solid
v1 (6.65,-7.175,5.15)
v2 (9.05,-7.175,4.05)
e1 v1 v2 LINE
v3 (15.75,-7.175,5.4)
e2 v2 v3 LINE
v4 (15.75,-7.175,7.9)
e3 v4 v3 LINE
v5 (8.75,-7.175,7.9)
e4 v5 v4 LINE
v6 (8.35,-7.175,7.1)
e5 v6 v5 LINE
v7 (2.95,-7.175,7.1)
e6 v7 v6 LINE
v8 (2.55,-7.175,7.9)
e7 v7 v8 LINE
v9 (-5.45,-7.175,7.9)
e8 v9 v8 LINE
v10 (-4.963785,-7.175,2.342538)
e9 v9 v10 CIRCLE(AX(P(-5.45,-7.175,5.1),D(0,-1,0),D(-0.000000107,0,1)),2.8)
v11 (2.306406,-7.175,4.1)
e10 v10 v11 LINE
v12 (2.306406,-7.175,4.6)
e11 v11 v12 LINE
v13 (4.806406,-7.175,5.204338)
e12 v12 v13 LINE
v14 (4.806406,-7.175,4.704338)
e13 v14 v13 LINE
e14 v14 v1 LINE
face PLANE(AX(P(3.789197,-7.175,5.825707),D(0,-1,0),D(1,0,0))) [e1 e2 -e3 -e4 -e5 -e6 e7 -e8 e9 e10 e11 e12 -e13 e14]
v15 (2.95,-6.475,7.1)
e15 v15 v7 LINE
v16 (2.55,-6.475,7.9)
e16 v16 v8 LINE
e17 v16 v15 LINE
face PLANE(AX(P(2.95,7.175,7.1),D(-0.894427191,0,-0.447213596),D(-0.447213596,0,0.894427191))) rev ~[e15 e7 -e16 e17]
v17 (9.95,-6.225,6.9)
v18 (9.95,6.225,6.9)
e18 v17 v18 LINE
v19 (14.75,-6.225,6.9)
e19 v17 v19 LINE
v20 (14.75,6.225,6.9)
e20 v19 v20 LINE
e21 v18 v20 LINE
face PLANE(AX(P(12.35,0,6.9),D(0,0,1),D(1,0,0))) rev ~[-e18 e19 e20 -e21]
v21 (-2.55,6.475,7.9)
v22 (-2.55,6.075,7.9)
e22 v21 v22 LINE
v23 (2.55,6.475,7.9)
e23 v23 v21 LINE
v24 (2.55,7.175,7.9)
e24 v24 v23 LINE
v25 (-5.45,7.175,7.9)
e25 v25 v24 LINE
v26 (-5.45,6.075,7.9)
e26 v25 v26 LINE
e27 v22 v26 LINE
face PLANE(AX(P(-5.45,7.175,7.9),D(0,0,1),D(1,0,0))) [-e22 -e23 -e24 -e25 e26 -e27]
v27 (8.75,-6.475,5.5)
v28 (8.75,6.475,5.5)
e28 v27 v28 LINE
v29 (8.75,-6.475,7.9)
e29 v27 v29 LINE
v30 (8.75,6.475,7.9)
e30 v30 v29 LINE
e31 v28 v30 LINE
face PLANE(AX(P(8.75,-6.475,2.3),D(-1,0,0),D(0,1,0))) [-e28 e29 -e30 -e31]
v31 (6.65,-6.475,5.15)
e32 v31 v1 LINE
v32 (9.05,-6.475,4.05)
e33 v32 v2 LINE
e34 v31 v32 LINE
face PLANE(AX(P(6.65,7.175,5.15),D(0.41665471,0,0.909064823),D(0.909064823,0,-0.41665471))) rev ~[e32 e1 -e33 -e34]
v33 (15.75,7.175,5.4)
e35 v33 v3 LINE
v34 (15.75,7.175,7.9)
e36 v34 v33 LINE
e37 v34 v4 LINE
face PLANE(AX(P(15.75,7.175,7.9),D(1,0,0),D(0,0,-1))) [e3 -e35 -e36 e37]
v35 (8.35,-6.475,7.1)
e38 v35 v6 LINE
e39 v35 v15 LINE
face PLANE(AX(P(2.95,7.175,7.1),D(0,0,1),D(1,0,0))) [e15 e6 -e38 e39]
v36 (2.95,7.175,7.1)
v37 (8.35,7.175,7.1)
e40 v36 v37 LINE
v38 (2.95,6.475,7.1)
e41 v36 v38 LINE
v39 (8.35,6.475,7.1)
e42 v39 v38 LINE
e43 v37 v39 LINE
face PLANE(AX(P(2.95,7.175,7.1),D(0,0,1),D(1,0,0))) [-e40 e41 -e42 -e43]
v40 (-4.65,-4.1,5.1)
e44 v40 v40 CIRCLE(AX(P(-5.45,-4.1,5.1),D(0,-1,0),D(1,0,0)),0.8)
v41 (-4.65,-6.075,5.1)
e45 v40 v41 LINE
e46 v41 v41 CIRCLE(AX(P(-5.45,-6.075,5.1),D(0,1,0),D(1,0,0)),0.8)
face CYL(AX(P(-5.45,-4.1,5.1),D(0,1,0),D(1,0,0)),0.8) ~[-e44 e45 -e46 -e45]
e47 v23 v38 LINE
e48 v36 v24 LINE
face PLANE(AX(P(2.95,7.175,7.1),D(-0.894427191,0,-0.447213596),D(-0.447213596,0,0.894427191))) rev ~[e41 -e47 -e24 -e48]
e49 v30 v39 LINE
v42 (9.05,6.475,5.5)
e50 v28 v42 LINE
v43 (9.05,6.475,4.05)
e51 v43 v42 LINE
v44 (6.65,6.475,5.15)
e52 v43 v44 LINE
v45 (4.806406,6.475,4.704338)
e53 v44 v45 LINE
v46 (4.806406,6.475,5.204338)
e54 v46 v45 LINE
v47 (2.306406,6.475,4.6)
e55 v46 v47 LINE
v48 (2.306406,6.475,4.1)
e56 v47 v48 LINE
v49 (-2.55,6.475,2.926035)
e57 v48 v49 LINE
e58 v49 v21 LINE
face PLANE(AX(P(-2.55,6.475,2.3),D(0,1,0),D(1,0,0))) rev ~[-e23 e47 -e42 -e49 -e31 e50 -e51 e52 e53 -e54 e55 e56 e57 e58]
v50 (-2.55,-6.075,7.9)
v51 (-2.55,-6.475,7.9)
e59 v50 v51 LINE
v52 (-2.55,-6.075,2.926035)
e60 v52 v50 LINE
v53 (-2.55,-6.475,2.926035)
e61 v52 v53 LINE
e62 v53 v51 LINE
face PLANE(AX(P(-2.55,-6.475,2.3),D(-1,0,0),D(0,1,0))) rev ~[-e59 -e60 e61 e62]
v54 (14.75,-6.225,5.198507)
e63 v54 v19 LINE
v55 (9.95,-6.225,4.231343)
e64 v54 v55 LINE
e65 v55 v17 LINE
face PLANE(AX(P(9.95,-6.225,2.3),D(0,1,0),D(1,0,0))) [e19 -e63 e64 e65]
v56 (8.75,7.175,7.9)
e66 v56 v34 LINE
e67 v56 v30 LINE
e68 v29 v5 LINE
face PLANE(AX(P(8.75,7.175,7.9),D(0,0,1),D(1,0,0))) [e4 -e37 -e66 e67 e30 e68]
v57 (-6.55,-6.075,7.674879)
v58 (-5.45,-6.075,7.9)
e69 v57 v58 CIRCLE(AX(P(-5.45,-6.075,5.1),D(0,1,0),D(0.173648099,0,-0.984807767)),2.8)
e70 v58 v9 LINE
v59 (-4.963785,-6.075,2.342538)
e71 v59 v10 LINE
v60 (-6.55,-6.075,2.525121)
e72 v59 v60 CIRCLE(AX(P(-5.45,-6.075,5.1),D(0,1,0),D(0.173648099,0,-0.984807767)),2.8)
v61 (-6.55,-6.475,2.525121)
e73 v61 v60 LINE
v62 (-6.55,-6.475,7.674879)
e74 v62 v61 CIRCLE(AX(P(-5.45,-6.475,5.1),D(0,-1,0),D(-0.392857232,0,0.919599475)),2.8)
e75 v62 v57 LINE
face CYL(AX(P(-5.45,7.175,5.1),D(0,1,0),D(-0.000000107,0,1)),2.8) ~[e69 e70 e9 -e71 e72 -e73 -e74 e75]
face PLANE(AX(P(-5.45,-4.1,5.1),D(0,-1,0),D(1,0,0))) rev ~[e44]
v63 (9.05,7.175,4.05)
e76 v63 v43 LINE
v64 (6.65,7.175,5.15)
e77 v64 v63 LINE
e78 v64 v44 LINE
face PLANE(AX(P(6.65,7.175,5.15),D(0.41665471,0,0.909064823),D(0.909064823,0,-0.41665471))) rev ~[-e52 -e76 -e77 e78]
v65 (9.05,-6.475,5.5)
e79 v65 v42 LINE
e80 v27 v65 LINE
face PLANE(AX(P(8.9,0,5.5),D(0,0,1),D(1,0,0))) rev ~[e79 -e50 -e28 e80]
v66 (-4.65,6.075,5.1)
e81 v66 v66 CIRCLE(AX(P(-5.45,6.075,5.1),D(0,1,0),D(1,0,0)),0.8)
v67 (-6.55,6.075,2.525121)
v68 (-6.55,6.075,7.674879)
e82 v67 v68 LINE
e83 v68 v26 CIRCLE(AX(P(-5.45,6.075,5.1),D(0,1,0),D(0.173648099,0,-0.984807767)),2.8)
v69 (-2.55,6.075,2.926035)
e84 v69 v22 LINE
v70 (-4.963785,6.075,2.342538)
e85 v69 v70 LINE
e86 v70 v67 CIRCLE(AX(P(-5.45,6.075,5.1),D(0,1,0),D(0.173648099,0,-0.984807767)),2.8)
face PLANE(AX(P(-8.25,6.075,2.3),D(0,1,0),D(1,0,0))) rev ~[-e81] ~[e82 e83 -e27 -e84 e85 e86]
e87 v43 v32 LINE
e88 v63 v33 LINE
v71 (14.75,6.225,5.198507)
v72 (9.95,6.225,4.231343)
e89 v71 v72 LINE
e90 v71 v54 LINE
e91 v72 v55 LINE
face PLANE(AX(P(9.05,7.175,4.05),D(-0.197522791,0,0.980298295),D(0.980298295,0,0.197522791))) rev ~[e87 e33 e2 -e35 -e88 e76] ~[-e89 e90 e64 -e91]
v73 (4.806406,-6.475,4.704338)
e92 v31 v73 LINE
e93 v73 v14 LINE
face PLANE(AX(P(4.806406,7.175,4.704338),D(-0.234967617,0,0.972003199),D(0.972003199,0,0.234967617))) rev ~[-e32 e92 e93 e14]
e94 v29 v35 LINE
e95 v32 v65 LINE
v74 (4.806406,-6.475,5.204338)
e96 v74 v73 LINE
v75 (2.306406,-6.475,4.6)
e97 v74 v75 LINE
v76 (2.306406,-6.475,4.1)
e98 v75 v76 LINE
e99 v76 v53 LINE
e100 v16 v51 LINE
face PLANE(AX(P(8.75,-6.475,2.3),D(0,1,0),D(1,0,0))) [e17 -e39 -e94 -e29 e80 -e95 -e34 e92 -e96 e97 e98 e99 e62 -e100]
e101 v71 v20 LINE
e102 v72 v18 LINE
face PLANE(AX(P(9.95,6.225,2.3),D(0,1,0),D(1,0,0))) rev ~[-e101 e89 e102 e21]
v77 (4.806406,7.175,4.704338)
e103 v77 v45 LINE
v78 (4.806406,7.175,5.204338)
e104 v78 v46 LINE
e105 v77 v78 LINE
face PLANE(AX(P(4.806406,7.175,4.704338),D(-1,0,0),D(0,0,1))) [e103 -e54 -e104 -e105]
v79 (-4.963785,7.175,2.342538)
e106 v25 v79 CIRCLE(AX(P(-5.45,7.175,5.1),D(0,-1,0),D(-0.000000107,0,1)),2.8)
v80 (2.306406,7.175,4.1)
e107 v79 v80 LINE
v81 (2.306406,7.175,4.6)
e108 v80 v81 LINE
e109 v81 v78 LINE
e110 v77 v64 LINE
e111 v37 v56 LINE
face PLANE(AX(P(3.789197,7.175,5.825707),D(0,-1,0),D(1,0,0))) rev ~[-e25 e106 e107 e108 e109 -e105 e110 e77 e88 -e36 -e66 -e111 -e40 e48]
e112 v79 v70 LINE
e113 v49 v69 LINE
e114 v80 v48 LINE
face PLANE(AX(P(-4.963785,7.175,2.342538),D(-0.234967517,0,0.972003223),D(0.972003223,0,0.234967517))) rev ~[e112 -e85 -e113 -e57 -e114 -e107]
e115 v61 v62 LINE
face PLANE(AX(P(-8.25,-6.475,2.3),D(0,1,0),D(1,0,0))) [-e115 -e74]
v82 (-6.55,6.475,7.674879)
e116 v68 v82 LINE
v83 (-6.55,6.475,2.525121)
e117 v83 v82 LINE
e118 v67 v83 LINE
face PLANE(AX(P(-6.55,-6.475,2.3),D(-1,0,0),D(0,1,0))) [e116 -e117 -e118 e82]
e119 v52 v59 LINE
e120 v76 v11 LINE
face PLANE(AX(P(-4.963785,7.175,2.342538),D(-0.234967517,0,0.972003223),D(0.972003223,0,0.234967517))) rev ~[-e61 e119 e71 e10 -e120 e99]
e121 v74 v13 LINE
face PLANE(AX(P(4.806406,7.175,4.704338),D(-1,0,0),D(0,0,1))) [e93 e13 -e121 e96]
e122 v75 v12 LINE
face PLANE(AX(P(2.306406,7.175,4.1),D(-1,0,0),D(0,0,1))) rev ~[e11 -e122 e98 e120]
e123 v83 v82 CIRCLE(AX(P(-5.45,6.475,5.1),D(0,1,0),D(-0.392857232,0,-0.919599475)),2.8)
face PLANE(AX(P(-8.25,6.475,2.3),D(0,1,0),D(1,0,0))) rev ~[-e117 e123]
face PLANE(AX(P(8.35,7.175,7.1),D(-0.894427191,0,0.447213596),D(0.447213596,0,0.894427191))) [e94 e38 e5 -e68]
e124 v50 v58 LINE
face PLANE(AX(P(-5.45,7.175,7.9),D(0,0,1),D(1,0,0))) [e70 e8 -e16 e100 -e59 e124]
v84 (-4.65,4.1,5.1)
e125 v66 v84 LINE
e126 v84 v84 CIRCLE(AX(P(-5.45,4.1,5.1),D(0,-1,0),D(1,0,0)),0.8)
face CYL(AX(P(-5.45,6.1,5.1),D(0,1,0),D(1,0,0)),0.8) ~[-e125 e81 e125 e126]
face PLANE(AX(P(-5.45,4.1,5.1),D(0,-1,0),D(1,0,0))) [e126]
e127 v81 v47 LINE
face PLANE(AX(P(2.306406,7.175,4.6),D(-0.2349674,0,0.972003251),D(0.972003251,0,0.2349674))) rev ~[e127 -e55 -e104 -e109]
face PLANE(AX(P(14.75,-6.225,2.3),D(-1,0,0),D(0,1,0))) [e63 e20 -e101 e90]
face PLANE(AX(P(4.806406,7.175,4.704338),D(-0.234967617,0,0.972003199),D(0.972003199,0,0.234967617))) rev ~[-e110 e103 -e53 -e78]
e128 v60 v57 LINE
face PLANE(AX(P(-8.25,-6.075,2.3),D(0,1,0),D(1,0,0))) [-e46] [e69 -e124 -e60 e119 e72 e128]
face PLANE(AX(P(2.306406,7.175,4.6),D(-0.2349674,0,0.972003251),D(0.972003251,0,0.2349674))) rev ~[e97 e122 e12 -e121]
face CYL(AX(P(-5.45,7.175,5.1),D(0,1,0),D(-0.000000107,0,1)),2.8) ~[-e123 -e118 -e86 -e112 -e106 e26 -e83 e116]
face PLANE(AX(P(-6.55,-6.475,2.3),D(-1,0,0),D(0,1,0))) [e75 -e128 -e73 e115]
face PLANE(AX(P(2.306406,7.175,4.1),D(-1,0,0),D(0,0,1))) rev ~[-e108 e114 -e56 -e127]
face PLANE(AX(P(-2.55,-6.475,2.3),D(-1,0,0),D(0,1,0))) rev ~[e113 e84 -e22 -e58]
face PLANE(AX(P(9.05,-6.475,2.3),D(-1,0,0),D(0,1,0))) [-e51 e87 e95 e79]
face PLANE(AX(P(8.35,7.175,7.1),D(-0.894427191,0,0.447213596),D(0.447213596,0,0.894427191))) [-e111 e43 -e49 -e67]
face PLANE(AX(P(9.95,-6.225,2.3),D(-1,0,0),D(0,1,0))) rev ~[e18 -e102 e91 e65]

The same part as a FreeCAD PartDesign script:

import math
import FreeCAD as App
import Part
import Sketcher


def add_polygon(sketch, points):
    """Adds a closed chain of lines whose ends are joined by coincident constraints."""
    first, n = sketch.GeometryCount, len(points)
    for a, b in zip(points, points[1:] + points[:1]):
        sketch.addGeometry(Part.LineSegment(App.Vector(*a, 0), App.Vector(*b, 0)), False)
    for i in range(n):
        sketch.addConstraint(Sketcher.Constraint("Coincident", first + i, 2, first + (i + 1) % n, 1))

doc = App.newDocument("Part")
body = doc.addObject("PartDesign::Body", "Body")

sketch1 = doc.addObject("Sketcher::SketchObject", "Sketch")
body.addObject(sketch1)
sketch1.AttachmentSupport = (doc.XZ_Plane, [""])
sketch1.MapMode = "FlatFace"
sketch1.AttachmentOffset = App.Placement(App.Vector(0, 0, 4.1), App.Rotation())
sketch1.addGeometry(Part.Circle(App.Vector(2.8, 2.8, 0), App.Vector(0, 0, 1), 0.8), False)
sketch1.addConstraint(Sketcher.Constraint("Diameter", 0, 1.6))
sketch1.addConstraint(Sketcher.Constraint("DistanceX", -1, 1, 0, 3, 2.8))
sketch1.addConstraint(Sketcher.Constraint("DistanceY", -1, 1, 0, 3, 2.8))
pad1 = doc.addObject("PartDesign::Pad", "Pad")
body.addObject(pad1)
pad1.Profile = sketch1
pad1.Length = 2
body2 = doc.addObject("PartDesign::Body", "Body001")

sketch2 = doc.addObject("Sketcher::SketchObject", "Sketch001")
body2.addObject(sketch2)
sketch2.AttachmentSupport = (doc.getObject("XZ_Plane001"), [""])
sketch2.MapMode = "FlatFace"
sketch2.AttachmentOffset = App.Placement(App.Vector(0, 0, -6.1), App.Rotation())
sketch2.addGeometry(Part.Circle(App.Vector(2.8, 2.8, 0), App.Vector(0, 0, 1), 0.8), False)
sketch2.addConstraint(Sketcher.Constraint("Diameter", 0, 1.6))
sketch2.addConstraint(Sketcher.Constraint("DistanceX", -1, 1, 0, 3, 2.8))
sketch2.addConstraint(Sketcher.Constraint("DistanceY", -1, 1, 0, 3, 2.8))
pad2 = doc.addObject("PartDesign::Pad", "Pad001")
body2.addObject(pad2)
pad2.Profile = sketch2
pad2.Length = 2
body3 = doc.addObject("PartDesign::Body", "Body002")

sketch3 = doc.addObject("Sketcher::SketchObject", "Sketch002")
body3.addObject(sketch3)
sketch3.AttachmentSupport = (doc.getObject("XY_Plane002"), [""])
sketch3.MapMode = "FlatFace"
add_polygon(sketch3, [(17, 6.47), (17, -6.47), (17.3, -6.47), (17.3, 6.47)])
sketch3.addConstraint(Sketcher.Constraint("Vertical", 0))
sketch3.addConstraint(Sketcher.Constraint("Horizontal", 1))
sketch3.addConstraint(Sketcher.Constraint("Vertical", 2))
sketch3.addConstraint(Sketcher.Constraint("Horizontal", 3))
sketch3.addConstraint(Sketcher.Constraint("DistanceX", 1, 1, 1, 2, 0.3))
sketch3.addConstraint(Sketcher.Constraint("DistanceX", -1, 1, 0, 2, 17.0))
sketch3.addConstraint(Sketcher.Constraint("DistanceY", 0, 2, 0, 1, 12.95))
sketch3.addConstraint(Sketcher.Constraint("DistanceY", 0, 2, -1, 1, 6.475))
pad3 = doc.addObject("PartDesign::Pad", "Pad002")
body3.addObject(pad3)
pad3.Profile = sketch3
pad3.Length = 3.2
body4 = doc.addObject("PartDesign::Body", "Body003")
body4.AllowCompound = True

sketch4 = doc.addObject("Sketcher::SketchObject", "Sketch003")
body4.addObject(sketch4)
sketch4.AttachmentSupport = (doc.getObject("XY_Plane003"), [""])
sketch4.MapMode = "FlatFace"
add_polygon(sketch4, [(18.2, 6.2), (18.2, -6.2), (23, -6.2), (23, 6.2)])
sketch4.addConstraint(Sketcher.Constraint("Vertical", 0))
sketch4.addConstraint(Sketcher.Constraint("Horizontal", 1))
sketch4.addConstraint(Sketcher.Constraint("Vertical", 2))
sketch4.addConstraint(Sketcher.Constraint("Horizontal", 3))
sketch4.addConstraint(Sketcher.Constraint("DistanceX", 1, 1, 1, 2, 4.8))
sketch4.addConstraint(Sketcher.Constraint("DistanceX", -1, 1, 1, 2, 23.0))
sketch4.addConstraint(Sketcher.Constraint("DistanceY", 0, 2, 0, 1, 12.45))
sketch4.addConstraint(Sketcher.Constraint("DistanceY", 0, 2, -1, 1, 6.225))
pad4 = doc.addObject("PartDesign::Pad", "Pad003")
body4.addObject(pad4)
pad4.Profile = sketch4
pad4.Length = 4.6
doc.recompute()

boolean = doc.addObject("PartDesign::Boolean", "Boolean")
body4.addObject(boolean)
boolean.Type = "Fuse"
boolean.addObjects([body3])
body5 = doc.addObject("PartDesign::Body", "Body004")

sketch5 = doc.addObject("Sketcher::SketchObject", "Sketch004")
body5.addObject(sketch5)
sketch5.AttachmentSupport = (doc.getObject("XY_Plane004"), [""])
sketch5.MapMode = "FlatFace"
add_polygon(sketch5, [(0, 6.5), (0, -6.5), (1.7, -6.5), (1.7, 6.5)])
sketch5.addConstraint(Sketcher.Constraint("Vertical", 0))
sketch5.addConstraint(Sketcher.Constraint("Horizontal", 1))
sketch5.addConstraint(Sketcher.Constraint("Vertical", 2))
sketch5.addConstraint(Sketcher.Constraint("Horizontal", 3))
sketch5.addConstraint(Sketcher.Constraint("Symmetric", 0, 2, 3, 2, -1, 1))
sketch5.addConstraint(Sketcher.Constraint("DistanceX", 1, 1, 1, 2, 1.7))
sketch5.addConstraint(Sketcher.Constraint("DistanceY", 0, 2, 0, 1, 12.95))
pad5 = doc.addObject("PartDesign::Pad", "Pad004")
body5.addObject(pad5)
pad5.Profile = sketch5
pad5.Length = 10
body6 = doc.addObject("PartDesign::Body", "Body005")
body6.AllowCompound = True

sketch6 = doc.addObject("Sketcher::SketchObject", "Sketch005")
body6.addObject(sketch6)
sketch6.AttachmentSupport = (doc.getObject("XY_Plane005"), [""])
sketch6.MapMode = "FlatFace"
add_polygon(sketch6, [(6, 6), (6, -6), (17, -6), (17, 6)])
sketch6.addConstraint(Sketcher.Constraint("Vertical", 0))
sketch6.addConstraint(Sketcher.Constraint("Horizontal", 1))
sketch6.addConstraint(Sketcher.Constraint("Vertical", 2))
sketch6.addConstraint(Sketcher.Constraint("Horizontal", 3))
sketch6.addConstraint(Sketcher.Constraint("DistanceX", 1, 1, 1, 2, 11.3))
sketch6.addConstraint(Sketcher.Constraint("DistanceX", -1, 1, 1, 2, 17.0))
sketch6.addConstraint(Sketcher.Constraint("DistanceY", 0, 2, 0, 1, 12.95))
sketch6.addConstraint(Sketcher.Constraint("DistanceY", 0, 2, -1, 1, 6.475))
pad6 = doc.addObject("PartDesign::Pad", "Pad005")
body6.addObject(pad6)
pad6.Profile = sketch6
pad6.Length = 10
doc.recompute()

boolean2 = doc.addObject("PartDesign::Boolean", "Boolean001")
body6.addObject(boolean2)
boolean2.Type = "Fuse"
boolean2.addObjects([body5])
body7 = doc.addObject("PartDesign::Body", "Body006")

sketch7 = doc.addObject("Sketcher::SketchObject", "Sketch006")
body7.addObject(sketch7)
sketch7.AttachmentSupport = (doc.getObject("XY_Plane006"), [""])
sketch7.MapMode = "FlatFace"
add_polygon(sketch7, [(0, 6), (0, -6), (16, -6), (16, 6)])
sketch7.addConstraint(Sketcher.Constraint("Vertical", 0))
sketch7.addConstraint(Sketcher.Constraint("Horizontal", 1))
sketch7.addConstraint(Sketcher.Constraint("Vertical", 2))
sketch7.addConstraint(Sketcher.Constraint("Horizontal", 3))
sketch7.addConstraint(Sketcher.Constraint("Symmetric", 0, 2, 3, 2, -1, 1))
sketch7.addConstraint(Sketcher.Constraint("DistanceX", 1, 1, 1, 2, 15.8))
sketch7.addConstraint(Sketcher.Constraint("DistanceY", 0, 2, 0, 1, 12.15))
pad7 = doc.addObject("PartDesign::Pad", "Pad006")
body7.addObject(pad7)
pad7.Profile = sketch7
pad7.Length = 10
body8 = doc.addObject("PartDesign::Body", "Body007")

sketch8 = doc.addObject("Sketcher::SketchObject", "Sketch007")
body8.addObject(sketch8)
sketch8.AttachmentSupport = (doc.getObject("XZ_Plane007"), [""])
sketch8.MapMode = "FlatFace"
sketch8.addGeometry(Part.ArcOfCircle(Part.Circle(App.Vector(2.8, 2.8, 0), App.Vector(0, 0, 1), 2.8), math.radians(90), math.radians(280)), False)
sketch8.addGeometry(Part.LineSegment(App.Vector(3.29, 0.04, 0), App.Vector(10.56, 1.8, 0)), False)
sketch8.addGeometry(Part.LineSegment(App.Vector(10.56, 1.8, 0), App.Vector(10.56, 2.3, 0)), False)
sketch8.addGeometry(Part.LineSegment(App.Vector(10.56, 2.3, 0), App.Vector(13.06, 2.9, 0)), False)
sketch8.addGeometry(Part.LineSegment(App.Vector(13.06, 2.9, 0), App.Vector(13.06, 2.4, 0)), False)
sketch8.addGeometry(Part.LineSegment(App.Vector(13.06, 2.4, 0), App.Vector(14.9, 2.85, 0)), False)
sketch8.addGeometry(Part.LineSegment(App.Vector(14.9, 2.85, 0), App.Vector(17.3, 1.75, 0)), False)
sketch8.addGeometry(Part.LineSegment(App.Vector(17.3, 1.75, 0), App.Vector(24, 3.1, 0)), False)
sketch8.addGeometry(Part.LineSegment(App.Vector(24, 3.1, 0), App.Vector(24, 5.6, 0)), False)
sketch8.addGeometry(Part.LineSegment(App.Vector(24, 5.6, 0), App.Vector(17, 5.6, 0)), False)
sketch8.addGeometry(Part.LineSegment(App.Vector(17, 5.6, 0), App.Vector(16.6, 4.8, 0)), False)
sketch8.addGeometry(Part.LineSegment(App.Vector(16.6, 4.8, 0), App.Vector(11.2, 4.8, 0)), False)
sketch8.addGeometry(Part.LineSegment(App.Vector(11.2, 4.8, 0), App.Vector(10.8, 5.6, 0)), False)
sketch8.addGeometry(Part.LineSegment(App.Vector(10.8, 5.6, 0), App.Vector(2.8, 5.6, 0)), False)
sketch8.addConstraint(Sketcher.Constraint("Coincident", 0, 2, 1, 1))
sketch8.addConstraint(Sketcher.Constraint("Coincident", 1, 2, 2, 1))
sketch8.addConstraint(Sketcher.Constraint("Coincident", 2, 2, 3, 1))
sketch8.addConstraint(Sketcher.Constraint("Coincident", 3, 2, 4, 1))
sketch8.addConstraint(Sketcher.Constraint("Coincident", 4, 2, 5, 1))
sketch8.addConstraint(Sketcher.Constraint("Coincident", 5, 2, 6, 1))
sketch8.addConstraint(Sketcher.Constraint("Coincident", 6, 2, 7, 1))
sketch8.addConstraint(Sketcher.Constraint("Coincident", 7, 2, 8, 1))
sketch8.addConstraint(Sketcher.Constraint("Coincident", 8, 2, 9, 1))
sketch8.addConstraint(Sketcher.Constraint("Coincident", 9, 2, 10, 1))
sketch8.addConstraint(Sketcher.Constraint("Coincident", 10, 2, 11, 1))
sketch8.addConstraint(Sketcher.Constraint("Coincident", 11, 2, 12, 1))
sketch8.addConstraint(Sketcher.Constraint("Coincident", 12, 2, 13, 1))
sketch8.addConstraint(Sketcher.Constraint("Tangent", 13, 2, 0, 1))
sketch8.addConstraint(Sketcher.Constraint("Vertical", 2))
sketch8.addConstraint(Sketcher.Constraint("Vertical", 4))
sketch8.addConstraint(Sketcher.Constraint("Vertical", 8))
sketch8.addConstraint(Sketcher.Constraint("Horizontal", 9))
sketch8.addConstraint(Sketcher.Constraint("Horizontal", 11))
sketch8.addConstraint(Sketcher.Constraint("Horizontal", 13))
sketch8.addConstraint(Sketcher.Constraint("Parallel", 1, 3))
sketch8.addConstraint(Sketcher.Constraint("Parallel", 3, 5))
sketch8.addConstraint(Sketcher.Constraint("Horizontal", 9, 2, 12, 2))
sketch8.addConstraint(Sketcher.Constraint("Equal", 2, 4))
sketch8.addConstraint(Sketcher.Constraint("Equal", 10, 12))
sketch8.addConstraint(Sketcher.Constraint("Radius", 0, 2.8))
sketch8.addConstraint(Sketcher.Constraint("DistanceX", 9, 2, 9, 1, 7.0))
sketch8.addConstraint(Sketcher.Constraint("DistanceX", 13, 2, 13, 1, 8.0))
sketch8.addConstraint(Sketcher.Constraint("DistanceX", 11, 2, 11, 1, 5.4))
sketch8.addConstraint(Sketcher.Constraint("DistanceY", 2, 1, 2, 2, 0.5))
sketch8.addConstraint(Sketcher.Constraint("DistanceY", 8, 1, 8, 2, 2.5))
sketch8.addConstraint(Sketcher.Constraint("DistanceX", -1, 1, 7, 2, 24.0))
sketch8.addConstraint(Sketcher.Constraint("DistanceY", 1, 2, 0, 3, 1.0))
sketch8.addConstraint(Sketcher.Constraint("DistanceY", 1, 2, 11, 2, 3.0))
sketch8.addConstraint(Sketcher.Constraint("DistanceX", -1, 1, 0, 3, 2.8))
sketch8.addConstraint(Sketcher.Constraint("DistanceY", -1, 1, 0, 3, 2.8))
sketch8.addConstraint(Sketcher.Constraint("DistanceX", -1, 1, 5, 2, 14.9))
sketch8.addConstraint(Sketcher.Constraint("DistanceX", -1, 1, 6, 2, 17.3))
sketch8.addConstraint(Sketcher.Constraint("DistanceX", 2, 2, 3, 2, 2.5))
sketch8.addConstraint(Sketcher.Constraint("DistanceY", 6, 2, 5, 2, 1.1))
sketch8.addConstraint(Sketcher.Constraint("DistanceY", -1, 1, 5, 2, 2.85))
sketch8.addConstraint(Sketcher.Constraint("DistanceY", 0, 2, 3, 2, 2.8618))
pad8 = doc.addObject("PartDesign::Pad", "Pad007")
body8.addObject(pad8)
pad8.Profile = sketch8
pad8.Length = 14.35
body9 = doc.addObject("PartDesign::Body", "Body008")
doc.recompute()

body8.Placement = App.Placement(App.Vector(0, 7.175, 0), App.Rotation(App.Vector(0, 0, 1), 0))
boolean3 = doc.addObject("PartDesign::Boolean", "Boolean002")
body9.addObject(boolean3)
boolean3.Type = "Fuse"
boolean3.addObjects([body8])
doc.recompute()

boolean4 = doc.addObject("PartDesign::Boolean", "Boolean003")
body9.addObject(boolean4)
boolean4.Type = "Cut"
boolean4.addObjects([body7])
doc.recompute()

boolean5 = doc.addObject("PartDesign::Boolean", "Boolean004")
body9.addObject(boolean5)
boolean5.Type = "Cut"
boolean5.addObjects([body6])
doc.recompute()

boolean6 = doc.addObject("PartDesign::Boolean", "Boolean005")
body9.addObject(boolean6)
boolean6.Type = "Cut"
boolean6.addObjects([body4])
doc.recompute()

boolean7 = doc.addObject("PartDesign::Boolean", "Boolean006")
body9.addObject(boolean7)
boolean7.Type = "Fuse"
boolean7.addObjects([body])
doc.recompute()

boolean8 = doc.addObject("PartDesign::Boolean", "Boolean007")
body9.addObject(boolean8)
boolean8.Type = "Fuse"
boolean8.addObjects([body2])
body10 = doc.addObject("PartDesign::Body", "Body009")
doc.recompute()

body9.Placement = App.Placement(App.Vector(-8.25, 0, 2.3), App.Rotation(App.Vector(0, 0, 1), 0))
boolean9 = doc.addObject("PartDesign::Boolean", "Boolean008")
body10.addObject(boolean9)
boolean9.Type = "Fuse"
boolean9.addObjects([body9])

doc.recompute()
